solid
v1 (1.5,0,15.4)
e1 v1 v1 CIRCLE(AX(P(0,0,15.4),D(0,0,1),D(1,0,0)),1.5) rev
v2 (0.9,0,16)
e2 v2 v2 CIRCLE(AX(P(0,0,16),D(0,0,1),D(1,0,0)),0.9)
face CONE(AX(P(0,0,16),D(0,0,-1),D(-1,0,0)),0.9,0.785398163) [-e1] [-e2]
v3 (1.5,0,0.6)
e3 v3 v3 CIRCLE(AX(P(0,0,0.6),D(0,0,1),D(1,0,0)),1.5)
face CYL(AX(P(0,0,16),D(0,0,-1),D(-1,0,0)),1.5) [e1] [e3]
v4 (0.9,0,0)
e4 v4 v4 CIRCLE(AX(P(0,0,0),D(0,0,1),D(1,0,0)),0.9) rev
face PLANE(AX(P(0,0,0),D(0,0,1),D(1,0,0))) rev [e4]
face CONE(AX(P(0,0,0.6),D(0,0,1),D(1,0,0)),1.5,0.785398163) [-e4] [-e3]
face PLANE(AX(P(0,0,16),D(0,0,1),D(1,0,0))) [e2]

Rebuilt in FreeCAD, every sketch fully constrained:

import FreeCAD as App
import Part
import Sketcher
Q = App.Units.Quantity


def edges_at(feature, points):
    """Names of the edges that pass closest to the given points."""
    edges = feature.Shape.Edges
    near = lambda p: min(range(len(edges)), key=lambda i: edges[i].distToShape(Part.Vertex(*p))[0])
    return sorted({f"Edge{near(p) + 1}" for p in points})

doc = App.newDocument("Part")
body = doc.addObject("PartDesign::Body", "Body")

# Sketch on XY plane
sketch1 = body.newObject("Sketcher::SketchObject", "Sketch")
sketch1.AttachmentSupport = (doc.getObject("XY_Plane"), [""])
sketch1.MapMode = "FlatFace"
sketch1.addGeometry(Part.Circle(App.Vector(0, 0, 0), App.Vector(0, 0, 1), 1.5), False)
sketch1.addConstraint([
    Sketcher.Constraint("Coincident", 0, 3, -1, 1),
    Sketcher.Constraint("Diameter", 0, Q("3 mm")),
])
pad1 = body.newObject("PartDesign::Pad", "Pad")
pad1.Profile = sketch1
pad1.Length = 16
doc.recompute()

chamfer = body.newObject("PartDesign::Chamfer", "Chamfer")
chamfer.Base = (pad1, edges_at(pad1, [(-1.5, 0, 0), (-1.5, 0, 16)]))
chamfer.Size = 0.6

doc.recompute()
